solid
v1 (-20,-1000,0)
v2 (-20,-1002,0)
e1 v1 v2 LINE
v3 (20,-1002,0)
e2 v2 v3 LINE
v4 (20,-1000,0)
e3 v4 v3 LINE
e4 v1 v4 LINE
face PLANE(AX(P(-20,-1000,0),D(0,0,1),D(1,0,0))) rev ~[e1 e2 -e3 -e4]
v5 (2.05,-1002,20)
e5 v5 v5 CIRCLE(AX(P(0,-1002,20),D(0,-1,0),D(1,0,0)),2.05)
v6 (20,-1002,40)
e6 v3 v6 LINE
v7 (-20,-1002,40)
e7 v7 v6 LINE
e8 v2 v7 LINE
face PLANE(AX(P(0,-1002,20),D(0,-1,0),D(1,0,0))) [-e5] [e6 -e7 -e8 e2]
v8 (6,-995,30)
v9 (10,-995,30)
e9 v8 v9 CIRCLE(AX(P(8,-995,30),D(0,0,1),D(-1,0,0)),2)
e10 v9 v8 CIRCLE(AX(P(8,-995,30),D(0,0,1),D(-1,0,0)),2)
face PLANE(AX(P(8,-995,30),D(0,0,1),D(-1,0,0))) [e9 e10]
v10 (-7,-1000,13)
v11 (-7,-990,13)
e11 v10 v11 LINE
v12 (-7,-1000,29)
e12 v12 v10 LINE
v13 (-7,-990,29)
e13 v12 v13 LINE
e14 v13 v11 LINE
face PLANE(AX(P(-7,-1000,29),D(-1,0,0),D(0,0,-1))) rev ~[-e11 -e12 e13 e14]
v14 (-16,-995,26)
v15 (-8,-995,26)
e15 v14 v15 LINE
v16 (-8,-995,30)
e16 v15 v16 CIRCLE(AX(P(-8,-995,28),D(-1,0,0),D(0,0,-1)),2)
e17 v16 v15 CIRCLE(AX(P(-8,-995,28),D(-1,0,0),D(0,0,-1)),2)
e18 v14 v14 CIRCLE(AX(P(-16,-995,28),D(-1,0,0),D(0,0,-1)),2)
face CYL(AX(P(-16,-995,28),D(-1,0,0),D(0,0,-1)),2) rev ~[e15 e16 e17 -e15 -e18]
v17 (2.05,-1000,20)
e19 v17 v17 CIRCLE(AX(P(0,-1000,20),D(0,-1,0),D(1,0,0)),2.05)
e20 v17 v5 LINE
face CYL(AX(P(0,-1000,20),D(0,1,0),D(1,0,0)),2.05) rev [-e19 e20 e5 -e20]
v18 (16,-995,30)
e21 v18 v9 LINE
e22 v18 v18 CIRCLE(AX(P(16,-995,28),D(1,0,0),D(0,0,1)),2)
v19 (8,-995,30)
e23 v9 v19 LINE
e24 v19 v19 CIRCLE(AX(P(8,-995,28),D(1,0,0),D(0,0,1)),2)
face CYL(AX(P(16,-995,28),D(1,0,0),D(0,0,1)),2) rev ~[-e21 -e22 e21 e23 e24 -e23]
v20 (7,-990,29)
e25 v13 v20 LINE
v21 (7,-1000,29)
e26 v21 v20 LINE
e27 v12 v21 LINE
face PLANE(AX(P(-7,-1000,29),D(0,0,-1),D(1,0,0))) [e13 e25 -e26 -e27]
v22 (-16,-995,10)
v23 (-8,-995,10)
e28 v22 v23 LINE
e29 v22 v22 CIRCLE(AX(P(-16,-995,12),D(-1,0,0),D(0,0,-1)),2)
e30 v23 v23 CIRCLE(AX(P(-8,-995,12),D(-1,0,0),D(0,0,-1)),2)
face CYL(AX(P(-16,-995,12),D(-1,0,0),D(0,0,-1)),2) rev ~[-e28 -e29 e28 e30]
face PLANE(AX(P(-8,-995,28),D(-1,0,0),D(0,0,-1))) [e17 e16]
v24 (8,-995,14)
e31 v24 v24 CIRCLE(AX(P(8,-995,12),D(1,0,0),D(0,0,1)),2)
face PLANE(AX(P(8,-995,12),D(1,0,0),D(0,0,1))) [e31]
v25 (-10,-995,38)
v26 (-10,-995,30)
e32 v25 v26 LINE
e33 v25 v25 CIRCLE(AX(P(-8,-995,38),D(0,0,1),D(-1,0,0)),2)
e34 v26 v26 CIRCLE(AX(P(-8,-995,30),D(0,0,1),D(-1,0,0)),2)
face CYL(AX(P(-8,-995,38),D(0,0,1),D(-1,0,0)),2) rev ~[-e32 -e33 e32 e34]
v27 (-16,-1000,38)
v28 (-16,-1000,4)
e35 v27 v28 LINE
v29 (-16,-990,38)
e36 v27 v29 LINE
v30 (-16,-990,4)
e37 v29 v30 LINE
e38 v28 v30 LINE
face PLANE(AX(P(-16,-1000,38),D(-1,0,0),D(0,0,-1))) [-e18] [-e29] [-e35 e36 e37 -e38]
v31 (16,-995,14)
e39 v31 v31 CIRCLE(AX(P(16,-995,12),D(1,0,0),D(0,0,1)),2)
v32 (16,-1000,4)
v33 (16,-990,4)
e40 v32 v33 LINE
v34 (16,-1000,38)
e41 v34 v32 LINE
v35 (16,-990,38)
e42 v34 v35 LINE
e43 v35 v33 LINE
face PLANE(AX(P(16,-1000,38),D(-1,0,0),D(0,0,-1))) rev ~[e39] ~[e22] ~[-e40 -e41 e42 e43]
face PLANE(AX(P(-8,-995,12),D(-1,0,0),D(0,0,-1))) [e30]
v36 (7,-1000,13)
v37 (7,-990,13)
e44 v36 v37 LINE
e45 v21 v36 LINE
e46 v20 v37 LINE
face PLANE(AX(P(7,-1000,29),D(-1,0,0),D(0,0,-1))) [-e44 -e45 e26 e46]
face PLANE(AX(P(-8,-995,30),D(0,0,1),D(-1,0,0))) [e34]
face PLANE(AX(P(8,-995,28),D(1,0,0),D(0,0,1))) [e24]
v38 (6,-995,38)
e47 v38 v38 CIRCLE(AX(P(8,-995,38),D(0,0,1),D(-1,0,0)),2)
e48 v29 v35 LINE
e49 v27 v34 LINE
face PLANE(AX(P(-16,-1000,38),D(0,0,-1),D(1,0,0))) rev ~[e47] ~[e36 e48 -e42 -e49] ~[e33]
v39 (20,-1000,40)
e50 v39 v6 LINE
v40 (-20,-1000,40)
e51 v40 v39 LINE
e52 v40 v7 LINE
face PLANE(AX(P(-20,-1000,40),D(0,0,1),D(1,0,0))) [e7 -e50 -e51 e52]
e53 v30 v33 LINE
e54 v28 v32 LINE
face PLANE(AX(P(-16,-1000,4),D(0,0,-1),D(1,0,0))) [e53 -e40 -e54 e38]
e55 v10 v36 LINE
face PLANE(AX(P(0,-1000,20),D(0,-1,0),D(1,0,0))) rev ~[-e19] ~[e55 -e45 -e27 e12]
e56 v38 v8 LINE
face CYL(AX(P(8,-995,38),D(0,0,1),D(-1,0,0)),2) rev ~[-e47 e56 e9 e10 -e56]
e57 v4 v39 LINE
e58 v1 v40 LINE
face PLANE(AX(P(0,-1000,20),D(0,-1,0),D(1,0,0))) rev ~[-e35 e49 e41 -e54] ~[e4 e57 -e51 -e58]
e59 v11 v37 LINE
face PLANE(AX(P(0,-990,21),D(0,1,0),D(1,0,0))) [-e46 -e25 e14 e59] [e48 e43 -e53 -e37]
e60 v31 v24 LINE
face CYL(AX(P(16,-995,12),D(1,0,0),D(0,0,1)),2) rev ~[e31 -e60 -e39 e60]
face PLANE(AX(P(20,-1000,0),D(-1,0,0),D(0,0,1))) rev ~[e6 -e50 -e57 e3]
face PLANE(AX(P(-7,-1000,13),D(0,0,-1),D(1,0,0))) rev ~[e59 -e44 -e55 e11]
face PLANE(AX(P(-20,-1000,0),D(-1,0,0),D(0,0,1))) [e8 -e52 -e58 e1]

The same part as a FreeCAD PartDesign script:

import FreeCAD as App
import Part
import Sketcher
Q = App.Units.Quantity


def add_polygon(sketch, points):
    """Adds a closed chain of lines whose ends are joined by coincident constraints."""
    first, n = sketch.GeometryCount, len(points)
    for a, b in zip(points, points[1:] + points[:1]):
        sketch.addGeometry(Part.LineSegment(App.Vector(*a, 0), App.Vector(*b, 0)), False)
    for i in range(n):
        sketch.addConstraint(Sketcher.Constraint("Coincident", first + i, 2, first + (i + 1) % n, 1))

doc = App.newDocument("Part")
params = doc.addObject("Spreadsheet::Sheet", "Params")
for row, (alias, value) in enumerate([
    ("sketch1_diameter", "4.1 mm"),
    ("sketch1_width", "40 mm"),
    ("pad1_length", "2 mm"),
    ("sketch2_width", "32 mm"),
    ("sketch2_width2", "14 mm"),
    ("sketch2_height", "34 mm"),
    ("sketch2_height2", "16 mm"),
    ("pad2_length", "10 mm"),
    ("sketch3_diameter", "4 mm"),
    ("pocket1_length", "8 mm"),
    ("sketch4_diameter", "4 mm"),
    ("pocket2_length", "8 mm"),
    ("sketch5_diameter", "4 mm"),
    ("pocket3_length", "8 mm"),
], start=1):
    params.set(f"A{row}", alias)
    params.set(f"B{row}", "=" + value)
    params.setAlias(f"B{row}", alias)

body = doc.addObject("PartDesign::Body", "Body")

# Sketch on XZ plane
sketch1 = body.newObject("Sketcher::SketchObject", "Sketch")
sketch1.AttachmentSupport = (doc.getObject("XZ_Plane"), [""])
sketch1.MapMode = "FlatFace"
add_polygon(sketch1, [(-20, 40), (-20, 0), (20, 0), (20, 40)])  # lines 0-3
sketch1.addGeometry(Part.Circle(App.Vector(0, 20, 0), App.Vector(0, 0, 1), 2), False)  # 4
sketch1.addConstraint(Sketcher.Constraint("Vertical", 0))
sketch1.addConstraint(Sketcher.Constraint("Horizontal", 1))
sketch1.addConstraint(Sketcher.Constraint("Vertical", 2))
sketch1.addConstraint(Sketcher.Constraint("Horizontal", 3))
sketch1.addConstraint(Sketcher.Constraint("Symmetric", 0, 2, 1, 2, -1, 1))
sketch1.addConstraint(Sketcher.Constraint("PointOnObject", 4, 3, -2))
sketch1.addConstraint(Sketcher.Constraint("Equal", 3, 0))
sketch1.addConstraint(Sketcher.Constraint("Diameter", 4, Q("4.1 mm")))
sketch1.addConstraint(Sketcher.Constraint("DistanceX", 1, 1, 1, 2, Q("40 mm")))
sketch1.addConstraint(Sketcher.Constraint("DistanceY", -1, 1, 4, 3, Q("20 mm")))
sketch1.setExpression("Constraints[11]", "Params.sketch1_diameter")
sketch1.setExpression("Constraints[12]", "Params.sketch1_width")
pad1 = body.newObject("PartDesign::Pad", "Pad")
pad1.Profile = sketch1
pad1.setExpression("Length", "Params.pad1_length")

# Sketch on XZ plane
sketch2 = body.newObject("Sketcher::SketchObject", "Sketch001")
sketch2.AttachmentSupport = (doc.getObject("XZ_Plane"), [""])
sketch2.MapMode = "FlatFace"
add_polygon(sketch2, [(-16, 4), (-16, 38), (16, 38), (16, 4)])  # lines 0-3
add_polygon(sketch2, [(7, 29), (-7, 29), (-7, 13), (7, 13)])  # lines 4-7
sketch2.addConstraint(Sketcher.Constraint("Vertical", 0))
sketch2.addConstraint(Sketcher.Constraint("Horizontal", 1))
sketch2.addConstraint(Sketcher.Constraint("Vertical", 2))
sketch2.addConstraint(Sketcher.Constraint("Horizontal", 3))
sketch2.addConstraint(Sketcher.Constraint("Horizontal", 4))
sketch2.addConstraint(Sketcher.Constraint("Vertical", 5))
sketch2.addConstraint(Sketcher.Constraint("Horizontal", 6))
sketch2.addConstraint(Sketcher.Constraint("Vertical", 7))
sketch2.addConstraint(Sketcher.Constraint("DistanceX", 1, 1, 1, 2, Q("32 mm")))
sketch2.addConstraint(Sketcher.Constraint("DistanceX", 4, 2, 4, 1, Q("14 mm")))
sketch2.addConstraint(Sketcher.Constraint("DistanceY", 0, 1, 0, 2, Q("34 mm")))
sketch2.addConstraint(Sketcher.Constraint("DistanceY", 5, 2, 5, 1, Q("16 mm")))
sketch2.addConstraint(Sketcher.Constraint("DistanceX", 0, 2, -1, 1, Q("16 mm")))
sketch2.addConstraint(Sketcher.Constraint("DistanceY", -1, 1, 0, 2, Q("38 mm")))
sketch2.addConstraint(Sketcher.Constraint("DistanceX", 4, 2, -1, 1, Q("7 mm")))
sketch2.addConstraint(Sketcher.Constraint("DistanceY", -1, 1, 4, 2, Q("29 mm")))
sketch2.setExpression("Constraints[16]", "Params.sketch2_width")
sketch2.setExpression("Constraints[17]", "Params.sketch2_width2")
sketch2.setExpression("Constraints[18]", "Params.sketch2_height")
sketch2.setExpression("Constraints[19]", "Params.sketch2_height2")
pad2 = body.newObject("PartDesign::Pad", "Pad001")
pad2.Profile = sketch2
pad2.setExpression("Length", "Params.pad2_length")
pad2.Reversed = True

# Sketch on XY plane
sketch3 = body.newObject("Sketcher::SketchObject", "Sketch002")
sketch3.AttachmentSupport = (doc.getObject("XY_Plane"), [""])
sketch3.MapMode = "FlatFace"
sketch3.AttachmentOffset = App.Placement(App.Vector(0, 0, 38), App.Rotation())
sketch3.addGeometry(Part.Circle(App.Vector(8, 5, 0), App.Vector(0, 0, 1), 2), False)
sketch3.addGeometry(Part.Circle(App.Vector(-8, 5, 0), App.Vector(0, 0, 1), 2), False)
sketch3.addConstraint(Sketcher.Constraint("Equal", 0, 1))
sketch3.addConstraint(Sketcher.Constraint("Symmetric", 0, 3, 1, 3, -2))
sketch3.addConstraint(Sketcher.Constraint("Diameter", 0, Q("4 mm")))
sketch3.addConstraint(Sketcher.Constraint("DistanceX", -1, 1, 0, 3, Q("8 mm")))
sketch3.addConstraint(Sketcher.Constraint("DistanceY", -1, 1, 0, 3, Q("5 mm")))
sketch3.setExpression("Constraints[2]", "Params.sketch3_diameter")
pocket1 = body.newObject("PartDesign::Pocket", "Pocket")
pocket1.Profile = sketch3
pocket1.setExpression("Length", "Params.pocket1_length")

# Sketch on YZ plane
sketch4 = body.newObject("Sketcher::SketchObject", "Sketch003")
sketch4.AttachmentSupport = (doc.getObject("YZ_Plane"), [""])
sketch4.MapMode = "FlatFace"
sketch4.AttachmentOffset = App.Placement(App.Vector(0, 0, -16), App.Rotation())
sketch4.addGeometry(Part.Circle(App.Vector(5, 28, 0), App.Vector(0, 0, 1), 2), False)
sketch4.addGeometry(Part.Circle(App.Vector(5, 12, 0), App.Vector(0, 0, 1), 2), False)
sketch4.addConstraint(Sketcher.Constraint("Equal", 0, 1))
sketch4.addConstraint(Sketcher.Constraint("Vertical", 0, 3, 1, 3))
sketch4.addConstraint(Sketcher.Constraint("Diameter", 0, Q("4 mm")))
sketch4.addConstraint(Sketcher.Constraint("DistanceX", -1, 1, 0, 3, Q("5 mm")))
sketch4.addConstraint(Sketcher.Constraint("DistanceY", -1, 1, 0, 3, Q("28 mm")))
sketch4.addConstraint(Sketcher.Constraint("DistanceY", -1, 1, 1, 3, Q("12 mm")))
sketch4.setExpression("Constraints[2]", "Params.sketch4_diameter")
pocket2 = body.newObject("PartDesign::Pocket", "Pocket001")
pocket2.Profile = sketch4
pocket2.setExpression("Length", "Params.pocket2_length")
pocket2.Reversed = True

# Sketch on YZ plane
sketch5 = body.newObject("Sketcher::SketchObject", "Sketch004")
sketch5.AttachmentSupport = (doc.getObject("YZ_Plane"), [""])
sketch5.MapMode = "FlatFace"
sketch5.AttachmentOffset = App.Placement(App.Vector(0, 0, 16), App.Rotation())
sketch5.addGeometry(Part.Circle(App.Vector(5, 12, 0), App.Vector(0, 0, 1), 2), False)
sketch5.addGeometry(Part.Circle(App.Vector(5, 28, 0), App.Vector(0, 0, 1), 2), False)
sketch5.addConstraint(Sketcher.Constraint("Equal", 0, 1))
sketch5.addConstraint(Sketcher.Constraint("Vertical", 0, 3, 1, 3))
sketch5.addConstraint(Sketcher.Constraint("Diameter", 0, Q("4 mm")))
sketch5.addConstraint(Sketcher.Constraint("DistanceX", -1, 1, 0, 3, Q("5 mm")))
sketch5.addConstraint(Sketcher.Constraint("DistanceY", -1, 1, 0, 3, Q("12 mm")))
sketch5.addConstraint(Sketcher.Constraint("DistanceY", -1, 1, 1, 3, Q("28 mm")))
sketch5.setExpression("Constraints[2]", "Params.sketch5_diameter")
pocket3 = body.newObject("PartDesign::Pocket", "Pocket002")
pocket3.Profile = sketch5
pocket3.setExpression("Length", "Params.pocket3_length")
body2 = doc.addObject("PartDesign::Body", "Body001")
doc.recompute()

body.Placement = App.Placement(App.Vector(0, -1000, 0), App.Rotation(App.Vector(0, 0, 1), 0))
boolean = body2.newObject("PartDesign::Boolean", "Boolean")
boolean.Type = "Fuse"
boolean.addObjects([body])

doc.recompute()
